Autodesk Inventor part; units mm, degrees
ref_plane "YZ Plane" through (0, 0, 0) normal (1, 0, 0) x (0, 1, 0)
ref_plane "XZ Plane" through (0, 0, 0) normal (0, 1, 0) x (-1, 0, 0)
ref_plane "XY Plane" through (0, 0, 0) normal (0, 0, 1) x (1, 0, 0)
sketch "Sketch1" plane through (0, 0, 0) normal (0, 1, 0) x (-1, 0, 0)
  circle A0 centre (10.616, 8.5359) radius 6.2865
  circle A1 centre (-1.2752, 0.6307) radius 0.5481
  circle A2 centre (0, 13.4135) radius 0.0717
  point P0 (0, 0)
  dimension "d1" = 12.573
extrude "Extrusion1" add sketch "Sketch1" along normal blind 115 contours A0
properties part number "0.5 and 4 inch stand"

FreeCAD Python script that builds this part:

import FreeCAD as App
import Part
import Sketcher

V = App.Vector

doc = App.newDocument("Part")
body = doc.addObject("PartDesign::Body", "Body")

# Sketch on XZ plane
sketch1 = body.newObject("Sketcher::SketchObject", "Sketch")
sketch1.AttachmentSupport = (doc.getObject("XZ_Plane"), [""])
sketch1.MapMode = "FlatFace"
sketch1.addGeometry(Part.Circle(V(-10.616, 8.5359, 0), V(0, 0, 1), 6.2865), False)
sketch1.addConstraint(Sketcher.Constraint("Diameter", 0, 12.573))
sketch1.addConstraint(Sketcher.Constraint("DistanceX", 0, 3, -1, 1, 10.616))
sketch1.addConstraint(Sketcher.Constraint("DistanceY", -1, 1, 0, 3, 8.536))
pad1 = body.newObject("PartDesign::Pad", "Pad")
pad1.Profile = sketch1
pad1.Length = 115
pad1.Reversed = True

doc.recompute()
